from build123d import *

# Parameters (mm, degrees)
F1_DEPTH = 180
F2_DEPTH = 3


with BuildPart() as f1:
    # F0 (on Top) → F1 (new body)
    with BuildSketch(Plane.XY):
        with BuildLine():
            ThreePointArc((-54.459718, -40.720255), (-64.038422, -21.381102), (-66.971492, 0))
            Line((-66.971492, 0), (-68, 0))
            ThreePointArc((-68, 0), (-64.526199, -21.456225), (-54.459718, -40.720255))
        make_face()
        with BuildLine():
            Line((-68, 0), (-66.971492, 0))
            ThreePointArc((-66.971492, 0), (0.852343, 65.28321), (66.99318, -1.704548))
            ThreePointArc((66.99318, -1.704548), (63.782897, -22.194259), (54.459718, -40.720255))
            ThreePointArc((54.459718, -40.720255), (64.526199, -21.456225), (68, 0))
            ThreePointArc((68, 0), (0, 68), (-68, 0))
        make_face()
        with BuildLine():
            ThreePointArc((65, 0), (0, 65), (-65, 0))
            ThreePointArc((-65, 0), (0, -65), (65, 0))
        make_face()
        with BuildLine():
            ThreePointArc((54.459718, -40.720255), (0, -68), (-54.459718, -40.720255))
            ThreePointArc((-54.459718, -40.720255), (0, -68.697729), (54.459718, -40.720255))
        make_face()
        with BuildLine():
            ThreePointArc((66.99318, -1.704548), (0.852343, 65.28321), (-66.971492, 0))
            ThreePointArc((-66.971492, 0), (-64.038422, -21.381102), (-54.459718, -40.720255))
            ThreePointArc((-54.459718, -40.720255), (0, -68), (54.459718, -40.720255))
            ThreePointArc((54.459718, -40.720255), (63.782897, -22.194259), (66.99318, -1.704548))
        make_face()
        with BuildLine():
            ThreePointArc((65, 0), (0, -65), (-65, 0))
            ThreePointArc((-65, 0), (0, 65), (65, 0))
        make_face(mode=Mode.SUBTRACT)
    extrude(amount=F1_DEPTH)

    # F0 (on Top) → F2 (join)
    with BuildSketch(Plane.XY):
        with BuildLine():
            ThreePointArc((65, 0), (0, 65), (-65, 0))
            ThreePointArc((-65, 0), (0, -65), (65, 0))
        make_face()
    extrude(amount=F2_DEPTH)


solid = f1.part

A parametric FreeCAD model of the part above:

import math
import FreeCAD as App
import Part
import Sketcher

doc = App.newDocument("Part")
body = doc.addObject("PartDesign::Body", "Body")

# Sketch on XY plane
sketch1 = body.newObject("Sketcher::SketchObject", "Sketch")
sketch1.AttachmentSupport = (doc.getObject("XY_Plane"), [""])
sketch1.MapMode = "FlatFace"
sketch1.addGeometry([
    Part.ArcOfCircle(Part.Circle(App.Vector(0, 0, 0), App.Vector(0, 0, 1), 68), math.radians(0), math.radians(180)),  # 0
    Part.ArcOfCircle(Part.Circle(App.Vector(0.000011, 0.000003, 0), App.Vector(0, 0, 1), 68.000011), math.radians(-179.999998), math.radians(-143.21405)),  # 1
    Part.ArcOfCircle(Part.Circle(App.Vector(0, -1.704548, 0), App.Vector(0, 0, 1), 66.993181), math.radians(-144.381657), math.radians(-35.618343)),  # 2
    Part.ArcOfCircle(Part.Circle(App.Vector(-0.000011, 0.000003, 0), App.Vector(0, 0, 1), 68.000011), math.radians(-36.78595), math.radians(-0.000002)),  # 3
    Part.Circle(App.Vector(0, 0, 0), App.Vector(0, 0, 1), 65),  # 4
], False)
sketch1.addConstraint([
    Sketcher.Constraint("Coincident", 0, 2, 1, 1),
    Sketcher.Constraint("Coincident", 1, 2, 2, 1),
    Sketcher.Constraint("Coincident", 2, 2, 3, 1),
    Sketcher.Constraint("Coincident", 3, 2, 0, 1),
    Sketcher.Constraint("Coincident", 0, 3, -1, 1),
    Sketcher.Constraint("Coincident", 4, 3, -1, 1),
    Sketcher.Constraint("PointOnObject", 2, 3, -2),
    Sketcher.Constraint("PointOnObject", 0, 2, -1),
    Sketcher.Constraint("PointOnObject", 3, 2, -1),
    Sketcher.Constraint("Diameter", 4, 130.0),
    Sketcher.Constraint("Radius", 0, 68.0),
    Sketcher.Constraint("Radius", 1, 68.000011),
    Sketcher.Constraint("Radius", 2, 66.993181),
    Sketcher.Constraint("Radius", 3, 68.000011),
    Sketcher.Constraint("DistanceY", 2, 3, -1, 1, 1.704548),
    Sketcher.Constraint("DistanceX", 1, 2, -1, 1, 54.459718),
    Sketcher.Constraint("DistanceY", 2, 3, 3, 3, 1.704551),
])
pad1 = body.newObject("PartDesign::Pad", "Pad")
pad1.Profile = sketch1
pad1.Length = 180

# Sketch on XY plane
sketch2 = body.newObject("Sketcher::SketchObject", "Sketch001")
sketch2.AttachmentSupport = (doc.getObject("XY_Plane"), [""])
sketch2.MapMode = "FlatFace"
sketch2.addGeometry(Part.Circle(App.Vector(0, 0, 0), App.Vector(0, 0, 1), 65), False)
sketch2.addConstraint([
    Sketcher.Constraint("Coincident", 0, 3, -1, 1),
    Sketcher.Constraint("Diameter", 0, 130.0),
])
pad2 = body.newObject("PartDesign::Pad", "Pad001")
pad2.Profile = sketch2
pad2.Length = 3

doc.recompute()
